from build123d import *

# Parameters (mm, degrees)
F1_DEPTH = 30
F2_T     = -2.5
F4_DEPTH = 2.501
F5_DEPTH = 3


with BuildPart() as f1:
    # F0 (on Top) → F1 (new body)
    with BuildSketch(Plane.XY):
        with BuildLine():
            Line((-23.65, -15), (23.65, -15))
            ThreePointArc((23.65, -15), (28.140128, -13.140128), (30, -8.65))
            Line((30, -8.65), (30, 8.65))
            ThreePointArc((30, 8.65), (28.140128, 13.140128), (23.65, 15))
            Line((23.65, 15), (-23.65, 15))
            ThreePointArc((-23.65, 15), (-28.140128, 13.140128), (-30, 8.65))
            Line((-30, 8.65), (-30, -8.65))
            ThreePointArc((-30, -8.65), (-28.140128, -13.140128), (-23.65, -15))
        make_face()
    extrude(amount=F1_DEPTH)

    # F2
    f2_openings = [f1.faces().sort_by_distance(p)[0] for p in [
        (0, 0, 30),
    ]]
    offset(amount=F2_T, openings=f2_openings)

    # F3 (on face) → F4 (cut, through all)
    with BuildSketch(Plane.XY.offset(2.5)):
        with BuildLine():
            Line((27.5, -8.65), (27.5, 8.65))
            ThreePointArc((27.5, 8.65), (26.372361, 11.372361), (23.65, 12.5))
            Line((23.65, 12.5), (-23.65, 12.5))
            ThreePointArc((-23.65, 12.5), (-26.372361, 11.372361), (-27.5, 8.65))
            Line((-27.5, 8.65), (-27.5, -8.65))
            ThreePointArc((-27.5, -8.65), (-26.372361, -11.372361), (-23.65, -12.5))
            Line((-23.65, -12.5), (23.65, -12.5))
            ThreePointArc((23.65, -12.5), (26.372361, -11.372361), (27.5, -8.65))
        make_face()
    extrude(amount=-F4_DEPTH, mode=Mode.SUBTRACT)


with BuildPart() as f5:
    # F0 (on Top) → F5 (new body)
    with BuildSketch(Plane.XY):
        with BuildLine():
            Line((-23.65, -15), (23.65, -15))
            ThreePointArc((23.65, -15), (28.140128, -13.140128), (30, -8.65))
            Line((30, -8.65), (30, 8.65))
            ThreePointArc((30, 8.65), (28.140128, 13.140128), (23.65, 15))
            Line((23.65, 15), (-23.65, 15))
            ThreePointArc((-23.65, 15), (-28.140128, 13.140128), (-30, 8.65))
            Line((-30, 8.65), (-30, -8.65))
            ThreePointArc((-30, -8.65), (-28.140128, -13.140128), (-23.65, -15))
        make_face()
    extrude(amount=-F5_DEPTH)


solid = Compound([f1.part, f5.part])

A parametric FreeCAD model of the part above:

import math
import FreeCAD as App
import Part
import Sketcher

V = App.Vector
Q = App.Units.Quantity


def faces_at(feature, points):
    """Names of the faces that lie closest to the given points."""
    faces = feature.Shape.Faces
    near = lambda p: min(range(len(faces)), key=lambda i: faces[i].distToShape(Part.Vertex(*p))[0])
    return sorted({f"Face{near(p) + 1}" for p in points})

doc = App.newDocument("Part")
body = doc.addObject("PartDesign::Body", "Body")

# Sketch on XY plane
sketch1 = doc.addObject("Sketcher::SketchObject", "Sketch")
body.addObject(sketch1)
sketch1.AttachmentSupport = (doc.XY_Plane, [""])
sketch1.MapMode = "FlatFace"
sketch1.addGeometry([
    Part.LineSegment(V(-23.65, -15, 0), V(23.65, -15, 0)),  # 0
    Part.ArcOfCircle(Part.Circle(V(23.65, -8.65, 0), V(0, 0, 1), 6.35), math.radians(-89.999998), math.radians(-0.000002)),  # 1
    Part.LineSegment(V(30, -8.65, 0), V(30, 8.65, 0)),  # 2
    Part.ArcOfCircle(Part.Circle(V(23.65, 8.65, 0), V(0, 0, 1), 6.35), math.radians(0.000002), math.radians(89.999998)),  # 3
    Part.LineSegment(V(23.65, 15, 0), V(-23.65, 15, 0)),  # 4
    Part.ArcOfCircle(Part.Circle(V(-23.65, 8.65, 0), V(0, 0, 1), 6.35), math.radians(90.000002), math.radians(179.999998)),  # 5
    Part.LineSegment(V(-30, 8.65, 0), V(-30, -8.65, 0)),  # 6
    Part.ArcOfCircle(Part.Circle(V(-23.65, -8.65, 0), V(0, 0, 1), 6.35), math.radians(-179.999998), math.radians(-90.000002)),  # 7
], False)
sketch1.addConstraint([
    Sketcher.Constraint("Tangent", 0, 2, 1, 1),
    Sketcher.Constraint("Tangent", 1, 2, 2, 1),
    Sketcher.Constraint("Tangent", 2, 2, 3, 1),
    Sketcher.Constraint("Tangent", 3, 2, 4, 1),
    Sketcher.Constraint("Tangent", 4, 2, 5, 1),
    Sketcher.Constraint("Tangent", 5, 2, 6, 1),
    Sketcher.Constraint("Tangent", 6, 2, 7, 1),
    Sketcher.Constraint("Tangent", 7, 2, 0, 1),
    Sketcher.Constraint("Horizontal", 0),
    Sketcher.Constraint("Vertical", 2),
    Sketcher.Constraint("Horizontal", 4),
    Sketcher.Constraint("Vertical", 6),
    Sketcher.Constraint("Equal", 1, 3),
    Sketcher.Constraint("Equal", 3, 5),
    Sketcher.Constraint("Equal", 5, 7),
    Sketcher.Constraint("Symmetric", 1, 3, 5, 3, -1, 1),
    Sketcher.Constraint("Radius", 1, Q("6.35 mm")),
    Sketcher.Constraint("DistanceX", 0, 1, 0, 2, Q("47.3 mm")),
    Sketcher.Constraint("DistanceY", 2, 1, 2, 2, Q("17.3 mm")),
])
pad1 = doc.addObject("PartDesign::Pad", "Pad")
body.addObject(pad1)
pad1.Profile = sketch1
pad1.Length = 30
doc.recompute()

thickness = doc.addObject("PartDesign::Thickness", "Thickness")
body.addObject(thickness)
thickness.Base = (pad1, faces_at(pad1, [(0, 0, 30)]))
thickness.Value = 2.5
thickness.Reversed = True
thickness.Join = "Arc"

# Sketch on XY plane
sketch2 = doc.addObject("Sketcher::SketchObject", "Sketch001")
body.addObject(sketch2)
sketch2.AttachmentSupport = (doc.XY_Plane, [""])
sketch2.MapMode = "FlatFace"
sketch2.AttachmentOffset = App.Placement(V(0, 0, 2.5), App.Rotation())
sketch2.addGeometry([
    Part.LineSegment(V(27.5, -8.65, 0), V(27.5, 8.65, 0)),  # 0
    Part.ArcOfCircle(Part.Circle(V(23.65, 8.65, 0), V(0, 0, 1), 3.85), math.radians(0.000005), math.radians(89.999995)),  # 1
    Part.LineSegment(V(23.65, 12.5, 0), V(-23.65, 12.5, 0)),  # 2
    Part.ArcOfCircle(Part.Circle(V(-23.65, 8.65, 0), V(0, 0, 1), 3.85), math.radians(90.000005), math.radians(179.999995)),  # 3
    Part.LineSegment(V(-27.5, 8.65, 0), V(-27.5, -8.65, 0)),  # 4
    Part.ArcOfCircle(Part.Circle(V(-23.65, -8.65, 0), V(0, 0, 1), 3.85), math.radians(-179.999995), math.radians(-90.000005)),  # 5
    Part.LineSegment(V(-23.65, -12.5, 0), V(23.65, -12.5, 0)),  # 6
    Part.ArcOfCircle(Part.Circle(V(23.65, -8.65, 0), V(0, 0, 1), 3.85), math.radians(-89.999995), math.radians(-0.000005)),  # 7
], False)
sketch2.addConstraint([
    Sketcher.Constraint("Tangent", 0, 2, 1, 1),
    Sketcher.Constraint("Tangent", 1, 2, 2, 1),
    Sketcher.Constraint("Tangent", 2, 2, 3, 1),
    Sketcher.Constraint("Tangent", 3, 2, 4, 1),
    Sketcher.Constraint("Tangent", 4, 2, 5, 1),
    Sketcher.Constraint("Tangent", 5, 2, 6, 1),
    Sketcher.Constraint("Tangent", 6, 2, 7, 1),
    Sketcher.Constraint("Tangent", 7, 2, 0, 1),
    Sketcher.Constraint("Vertical", 0),
    Sketcher.Constraint("Horizontal", 2),
    Sketcher.Constraint("Vertical", 4),
    Sketcher.Constraint("Horizontal", 6),
    Sketcher.Constraint("Equal", 1, 3),
    Sketcher.Constraint("Equal", 3, 5),
    Sketcher.Constraint("Equal", 5, 7),
    Sketcher.Constraint("Symmetric", 1, 3, 5, 3, -1, 1),
    Sketcher.Constraint("Radius", 1, Q("3.85 mm")),
    Sketcher.Constraint("DistanceX", 2, 2, 2, 1, Q("47.3 mm")),
    Sketcher.Constraint("DistanceY", 0, 1, 0, 2, Q("17.3 mm")),
])
pocket1 = doc.addObject("PartDesign::Pocket", "Pocket")
body.addObject(pocket1)
pocket1.Profile = sketch2
pocket1.Type = "ThroughAll"
body2 = doc.addObject("PartDesign::Body", "Body001")

# Sketch on XY plane
sketch3 = doc.addObject("Sketcher::SketchObject", "Sketch002")
body2.addObject(sketch3)
sketch3.AttachmentSupport = (doc.getObject("XY_Plane001"), [""])
sketch3.MapMode = "FlatFace"
sketch3.addGeometry([
    Part.LineSegment(V(-23.65, -15, 0), V(23.65, -15, 0)),  # 0
    Part.ArcOfCircle(Part.Circle(V(23.65, -8.65, 0), V(0, 0, 1), 6.35), math.radians(-89.999998), math.radians(-0.000002)),  # 1
    Part.LineSegment(V(30, -8.65, 0), V(30, 8.65, 0)),  # 2
    Part.ArcOfCircle(Part.Circle(V(23.65, 8.65, 0), V(0, 0, 1), 6.35), math.radians(0.000002), math.radians(89.999998)),  # 3
    Part.LineSegment(V(23.65, 15, 0), V(-23.65, 15, 0)),  # 4
    Part.ArcOfCircle(Part.Circle(V(-23.65, 8.65, 0), V(0, 0, 1), 6.35), math.radians(90.000002), math.radians(179.999998)),  # 5
    Part.LineSegment(V(-30, 8.65, 0), V(-30, -8.65, 0)),  # 6
    Part.ArcOfCircle(Part.Circle(V(-23.65, -8.65, 0), V(0, 0, 1), 6.35), math.radians(-179.999998), math.radians(-90.000002)),  # 7
], False)
sketch3.addConstraint([
    Sketcher.Constraint("Tangent", 0, 2, 1, 1),
    Sketcher.Constraint("Tangent", 1, 2, 2, 1),
    Sketcher.Constraint("Tangent", 2, 2, 3, 1),
    Sketcher.Constraint("Tangent", 3, 2, 4, 1),
    Sketcher.Constraint("Tangent", 4, 2, 5, 1),
    Sketcher.Constraint("Tangent", 5, 2, 6, 1),
    Sketcher.Constraint("Tangent", 6, 2, 7, 1),
    Sketcher.Constraint("Tangent", 7, 2, 0, 1),
    Sketcher.Constraint("Horizontal", 0),
    Sketcher.Constraint("Vertical", 2),
    Sketcher.Constraint("Horizontal", 4),
    Sketcher.Constraint("Vertical", 6),
    Sketcher.Constraint("Equal", 1, 3),
    Sketcher.Constraint("Equal", 3, 5),
    Sketcher.Constraint("Equal", 5, 7),
    Sketcher.Constraint("Symmetric", 1, 3, 5, 3, -1, 1),
    Sketcher.Constraint("Radius", 1, Q("6.35 mm")),
    Sketcher.Constraint("DistanceX", 0, 1, 0, 2, Q("47.3 mm")),
    Sketcher.Constraint("DistanceY", 2, 1, 2, 2, Q("17.3 mm")),
])
pad2 = doc.addObject("PartDesign::Pad", "Pad001")
body2.addObject(pad2)
pad2.Profile = sketch3
pad2.Length = 3
pad2.Reversed = True

doc.recompute()
